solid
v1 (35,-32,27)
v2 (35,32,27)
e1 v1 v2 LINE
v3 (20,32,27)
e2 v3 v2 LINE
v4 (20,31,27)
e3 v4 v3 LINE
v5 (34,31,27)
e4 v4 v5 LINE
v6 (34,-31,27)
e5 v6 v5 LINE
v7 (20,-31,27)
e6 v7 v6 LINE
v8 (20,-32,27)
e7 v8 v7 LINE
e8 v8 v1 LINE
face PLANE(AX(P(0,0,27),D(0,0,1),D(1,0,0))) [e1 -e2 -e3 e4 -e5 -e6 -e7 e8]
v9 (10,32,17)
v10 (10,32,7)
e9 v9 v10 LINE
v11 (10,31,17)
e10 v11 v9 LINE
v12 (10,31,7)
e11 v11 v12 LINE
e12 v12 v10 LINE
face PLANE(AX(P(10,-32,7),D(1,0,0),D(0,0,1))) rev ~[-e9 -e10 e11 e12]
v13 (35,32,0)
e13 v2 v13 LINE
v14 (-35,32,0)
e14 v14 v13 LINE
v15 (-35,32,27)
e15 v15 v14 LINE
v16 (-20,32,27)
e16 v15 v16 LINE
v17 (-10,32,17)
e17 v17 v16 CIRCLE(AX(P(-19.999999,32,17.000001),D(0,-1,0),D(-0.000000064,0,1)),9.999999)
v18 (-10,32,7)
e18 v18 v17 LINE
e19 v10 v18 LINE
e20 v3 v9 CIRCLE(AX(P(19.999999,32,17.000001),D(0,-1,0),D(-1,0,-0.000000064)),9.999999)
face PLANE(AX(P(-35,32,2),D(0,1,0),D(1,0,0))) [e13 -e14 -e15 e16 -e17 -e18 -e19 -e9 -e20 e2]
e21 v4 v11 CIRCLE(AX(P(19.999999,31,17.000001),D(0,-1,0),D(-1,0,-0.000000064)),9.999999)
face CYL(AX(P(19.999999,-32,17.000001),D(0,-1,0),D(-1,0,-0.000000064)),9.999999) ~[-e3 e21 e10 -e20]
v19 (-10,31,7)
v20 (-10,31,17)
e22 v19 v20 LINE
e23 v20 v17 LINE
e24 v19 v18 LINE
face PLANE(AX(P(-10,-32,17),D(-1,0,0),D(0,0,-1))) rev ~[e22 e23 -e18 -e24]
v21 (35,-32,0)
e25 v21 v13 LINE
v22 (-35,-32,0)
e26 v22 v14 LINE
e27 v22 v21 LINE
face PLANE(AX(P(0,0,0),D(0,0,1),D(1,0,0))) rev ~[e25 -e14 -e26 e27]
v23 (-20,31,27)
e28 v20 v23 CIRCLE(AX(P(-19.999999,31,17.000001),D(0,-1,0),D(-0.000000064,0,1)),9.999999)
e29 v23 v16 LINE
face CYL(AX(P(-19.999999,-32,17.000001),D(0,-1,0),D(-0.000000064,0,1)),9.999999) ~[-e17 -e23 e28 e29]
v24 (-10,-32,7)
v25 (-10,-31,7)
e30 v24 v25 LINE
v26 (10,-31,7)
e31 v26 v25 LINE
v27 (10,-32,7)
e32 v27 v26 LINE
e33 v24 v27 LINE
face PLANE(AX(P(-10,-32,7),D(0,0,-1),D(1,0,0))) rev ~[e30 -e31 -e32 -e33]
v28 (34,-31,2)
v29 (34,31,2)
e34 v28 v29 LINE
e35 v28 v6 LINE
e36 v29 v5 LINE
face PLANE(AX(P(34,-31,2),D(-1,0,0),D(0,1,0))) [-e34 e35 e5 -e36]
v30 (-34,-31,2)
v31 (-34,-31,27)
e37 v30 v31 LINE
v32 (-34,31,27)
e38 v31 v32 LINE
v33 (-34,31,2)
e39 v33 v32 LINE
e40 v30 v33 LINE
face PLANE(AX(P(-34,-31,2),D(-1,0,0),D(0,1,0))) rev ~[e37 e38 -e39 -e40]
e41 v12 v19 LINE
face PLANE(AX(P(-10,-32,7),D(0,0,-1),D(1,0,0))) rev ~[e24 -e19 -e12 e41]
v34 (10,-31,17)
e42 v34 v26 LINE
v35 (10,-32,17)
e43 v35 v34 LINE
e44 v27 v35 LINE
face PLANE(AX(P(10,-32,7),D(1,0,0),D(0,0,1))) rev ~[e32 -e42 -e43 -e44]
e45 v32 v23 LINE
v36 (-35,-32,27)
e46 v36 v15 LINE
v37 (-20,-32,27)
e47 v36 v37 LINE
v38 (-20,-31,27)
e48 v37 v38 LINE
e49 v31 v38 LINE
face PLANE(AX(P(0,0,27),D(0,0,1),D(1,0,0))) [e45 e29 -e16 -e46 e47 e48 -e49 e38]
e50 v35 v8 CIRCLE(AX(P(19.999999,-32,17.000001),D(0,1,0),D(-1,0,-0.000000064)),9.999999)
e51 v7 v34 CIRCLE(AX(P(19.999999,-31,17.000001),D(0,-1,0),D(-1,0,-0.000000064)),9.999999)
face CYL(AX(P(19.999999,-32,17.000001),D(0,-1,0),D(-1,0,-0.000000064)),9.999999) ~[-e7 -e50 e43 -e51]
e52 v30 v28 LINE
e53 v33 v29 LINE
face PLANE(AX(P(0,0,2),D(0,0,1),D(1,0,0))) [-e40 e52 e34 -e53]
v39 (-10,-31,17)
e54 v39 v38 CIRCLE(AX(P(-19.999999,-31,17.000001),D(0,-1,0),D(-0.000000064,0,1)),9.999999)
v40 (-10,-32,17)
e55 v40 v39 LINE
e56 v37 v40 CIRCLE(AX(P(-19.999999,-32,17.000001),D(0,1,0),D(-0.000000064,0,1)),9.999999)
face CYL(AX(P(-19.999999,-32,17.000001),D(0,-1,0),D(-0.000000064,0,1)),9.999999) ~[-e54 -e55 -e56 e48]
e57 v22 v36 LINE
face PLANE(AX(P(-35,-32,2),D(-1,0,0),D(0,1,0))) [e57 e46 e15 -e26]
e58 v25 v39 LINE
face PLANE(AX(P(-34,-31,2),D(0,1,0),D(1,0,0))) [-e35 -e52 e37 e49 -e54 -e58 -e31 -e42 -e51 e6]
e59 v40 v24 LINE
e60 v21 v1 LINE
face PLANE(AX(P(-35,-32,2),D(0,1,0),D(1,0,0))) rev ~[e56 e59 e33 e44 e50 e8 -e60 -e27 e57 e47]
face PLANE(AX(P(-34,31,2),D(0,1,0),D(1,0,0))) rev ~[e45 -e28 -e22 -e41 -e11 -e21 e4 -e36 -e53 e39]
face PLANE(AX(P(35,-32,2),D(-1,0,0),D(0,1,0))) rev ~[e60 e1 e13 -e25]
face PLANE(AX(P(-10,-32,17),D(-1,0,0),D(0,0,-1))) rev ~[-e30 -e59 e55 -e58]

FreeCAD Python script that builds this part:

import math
import FreeCAD as App
import Part
import Sketcher
from FreeCAD import Vector


def add_polygon(sketch, points):
    """Adds a closed chain of lines whose ends are joined by coincident constraints."""
    first, n = sketch.GeometryCount, len(points)
    for a, b in zip(points, points[1:] + points[:1]):
        sketch.addGeometry(Part.LineSegment(App.Vector(*a, 0), App.Vector(*b, 0)), False)
    for i in range(n):
        sketch.addConstraint(Sketcher.Constraint("Coincident", first + i, 2, first + (i + 1) % n, 1))

doc = App.newDocument("Part")
params = doc.addObject("Spreadsheet::Sheet", "Params")
for row, (alias, value) in enumerate([
    ("sketch1_width", "70 mm"),
    ("sketch1_height", "64 mm"),
    ("pad1_length", "2 mm"),
    ("sketch2_width", "70 mm"),
    ("sketch2_width2", "68 mm"),
    ("sketch2_height", "64 mm"),
    ("sketch2_height2", "62 mm"),
    ("pad2_length", "25 mm"),
    ("sketch3_radius", "9.999999 mm"),
    ("sketch3_width", "20 mm"),
    ("sketch3_height", "10 mm"),
    ("pocket1_length", "125 mm"),
], start=1):
    params.set(f"A{row}", alias)
    params.set(f"B{row}", "=" + value)
    params.setAlias(f"B{row}", alias)

body = doc.addObject("PartDesign::Body", "Body")

sketch1 = doc.addObject("Sketcher::SketchObject", "Sketch")
body.addObject(sketch1)
sketch1.AttachmentSupport = (doc.XY_Plane, [""])
sketch1.MapMode = "FlatFace"
add_polygon(sketch1, [(-35, 32), (-35, -32), (35, -32), (35, 32)])
sketch1.addConstraint([
    Sketcher.Constraint("Vertical", 0),
    Sketcher.Constraint("Horizontal", 1),
    Sketcher.Constraint("Vertical", 2),
    Sketcher.Constraint("Horizontal", 3),
    Sketcher.Constraint("Symmetric", 0, 2, 2, 2, -1, 1),
    Sketcher.Constraint("DistanceX", 1, 1, 1, 2, 70.0),
    Sketcher.Constraint("DistanceY", 0, 2, 0, 1, 64.0),
])
sketch1.setExpression("Constraints[9]", "Params.sketch1_width")
sketch1.setExpression("Constraints[10]", "Params.sketch1_height")
pad1 = doc.addObject("PartDesign::Pad", "Pad")
body.addObject(pad1)
pad1.Profile = sketch1
pad1.setExpression("Length", "Params.pad1_length")

sketch2 = doc.addObject("Sketcher::SketchObject", "Sketch001")
body.addObject(sketch2)
sketch2.AttachmentSupport = (doc.XY_Plane, [""])
sketch2.MapMode = "FlatFace"
sketch2.AttachmentOffset = App.Placement(Vector(0, 0, 2), App.Rotation())
add_polygon(sketch2, [(-35, 32), (-35, -32), (35, -32), (35, 32)])
add_polygon(sketch2, [(34, -31), (-34, -31), (-34, 31), (34, 31)])
sketch2.addConstraint([
    Sketcher.Constraint("Vertical", 0),
    Sketcher.Constraint("Horizontal", 1),
    Sketcher.Constraint("Vertical", 2),
    Sketcher.Constraint("Horizontal", 3),
    Sketcher.Constraint("Horizontal", 4),
    Sketcher.Constraint("Vertical", 5),
    Sketcher.Constraint("Horizontal", 6),
    Sketcher.Constraint("Vertical", 7),
    Sketcher.Constraint("Symmetric", 0, 2, 2, 2, -1, 1),
    Sketcher.Constraint("Symmetric", 4, 2, 6, 2, -1, 1),
    Sketcher.Constraint("DistanceX", 1, 1, 1, 2, 70.0),
    Sketcher.Constraint("DistanceX", 4, 2, 4, 1, 68.0),
    Sketcher.Constraint("DistanceY", 0, 2, 0, 1, 64.0),
    Sketcher.Constraint("DistanceY", 5, 1, 5, 2, 62.0),
])
sketch2.setExpression("Constraints[18]", "Params.sketch2_width")
sketch2.setExpression("Constraints[19]", "Params.sketch2_width2")
sketch2.setExpression("Constraints[20]", "Params.sketch2_height")
sketch2.setExpression("Constraints[21]", "Params.sketch2_height2")
pad2 = doc.addObject("PartDesign::Pad", "Pad001")
body.addObject(pad2)
pad2.Profile = sketch2
pad2.setExpression("Length", "Params.pad2_length")

sketch3 = doc.addObject("Sketcher::SketchObject", "Sketch002")
body.addObject(sketch3)
sketch3.AttachmentSupport = (doc.XZ_Plane, [""])
sketch3.MapMode = "FlatFace"
sketch3.AttachmentOffset = App.Placement(Vector(0, 0, 32), App.Rotation())
sketch3.addGeometry([
    Part.LineSegment(Vector(-10, 7, 0), Vector(10, 7, 0)),
    Part.LineSegment(Vector(10, 7, 0), Vector(10, 17, 0)),
    Part.ArcOfCircle(Part.Circle(Vector(19.999999, 17.000001, 0), Vector(0, 0, 1), 9.999999), math.radians(89.999996), math.radians(180.000004)),
    Part.LineSegment(Vector(20, 27, 0), Vector(-20, 27, 0)),
    Part.ArcOfCircle(Part.Circle(Vector(-19.999999, 17.000001, 0), Vector(0, 0, 1), 9.999999), math.radians(-0.000004), math.radians(90.000004)),
    Part.LineSegment(Vector(-10, 17, 0), Vector(-10, 7, 0)),
], False)
sketch3.addConstraint([
    Sketcher.Constraint("Coincident", 0, 2, 1, 1),
    Sketcher.Constraint("Tangent", 1, 2, 2, 2),
    Sketcher.Constraint("Tangent", 2, 1, 3, 1),
    Sketcher.Constraint("Tangent", 3, 2, 4, 2),
    Sketcher.Constraint("Tangent", 4, 1, 5, 1),
    Sketcher.Constraint("Coincident", 5, 2, 0, 1),
    Sketcher.Constraint("Horizontal", 0),
    Sketcher.Constraint("Vertical", 1),
    Sketcher.Constraint("Horizontal", 3),
    Sketcher.Constraint("Vertical", 5),
    Sketcher.Constraint("Equal", 2, 4),
    Sketcher.Constraint("Radius", 2, 9.999999),
    Sketcher.Constraint("DistanceX", 0, 1, 0, 2, 20.0),
    Sketcher.Constraint("DistanceY", 1, 1, 1, 2, 10.0),
    Sketcher.Constraint("DistanceX", -1, 1, 2, 3, 19.999999),
    Sketcher.Constraint("DistanceY", -1, 1, 2, 3, 17.000001),
])
sketch3.setExpression("Constraints[11]", "Params.sketch3_radius")
sketch3.setExpression("Constraints[12]", "Params.sketch3_width")
sketch3.setExpression("Constraints[13]", "Params.sketch3_height")
pocket1 = doc.addObject("PartDesign::Pocket", "Pocket")
body.addObject(pocket1)
pocket1.Profile = sketch3
pocket1.setExpression("Length", "Params.pocket1_length")

doc.recompute()
